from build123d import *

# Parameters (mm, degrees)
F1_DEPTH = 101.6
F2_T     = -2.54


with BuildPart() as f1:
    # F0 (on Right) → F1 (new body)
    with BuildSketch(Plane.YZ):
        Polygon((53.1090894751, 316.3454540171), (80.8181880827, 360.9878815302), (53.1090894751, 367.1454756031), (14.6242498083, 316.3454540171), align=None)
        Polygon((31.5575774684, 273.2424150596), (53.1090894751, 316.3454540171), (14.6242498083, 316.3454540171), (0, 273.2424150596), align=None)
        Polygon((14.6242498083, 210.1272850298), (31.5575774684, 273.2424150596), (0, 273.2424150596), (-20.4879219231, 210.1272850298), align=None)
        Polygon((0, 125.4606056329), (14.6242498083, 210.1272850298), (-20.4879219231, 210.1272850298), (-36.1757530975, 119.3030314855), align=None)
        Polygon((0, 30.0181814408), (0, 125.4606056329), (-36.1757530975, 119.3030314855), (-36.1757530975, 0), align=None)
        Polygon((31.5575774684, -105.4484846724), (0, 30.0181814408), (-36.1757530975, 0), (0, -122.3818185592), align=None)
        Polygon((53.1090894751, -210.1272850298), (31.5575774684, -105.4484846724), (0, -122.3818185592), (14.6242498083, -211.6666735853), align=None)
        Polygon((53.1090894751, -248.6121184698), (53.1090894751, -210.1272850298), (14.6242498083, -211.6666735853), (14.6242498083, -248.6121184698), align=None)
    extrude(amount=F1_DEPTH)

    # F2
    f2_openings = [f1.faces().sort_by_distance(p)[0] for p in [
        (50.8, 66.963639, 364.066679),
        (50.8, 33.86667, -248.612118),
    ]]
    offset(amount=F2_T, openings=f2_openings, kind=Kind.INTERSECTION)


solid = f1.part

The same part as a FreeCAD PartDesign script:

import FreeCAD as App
import Part
import Sketcher
Q = App.Units.Quantity


def faces_at(feature, points):
    """Names of the faces that lie closest to the given points."""
    faces = feature.Shape.Faces
    near = lambda p: min(range(len(faces)), key=lambda i: faces[i].distToShape(Part.Vertex(*p))[0])
    return sorted({f"Face{near(p) + 1}" for p in points})

doc = App.newDocument("Part")
body = doc.addObject("PartDesign::Body", "Body")

# Sketch on YZ plane
sketch1 = body.newObject("Sketcher::SketchObject", "Sketch")
sketch1.AttachmentSupport = (doc.getObject("YZ_Plane"), [""])
sketch1.MapMode = "FlatFace"
sketch1.addGeometry(Part.LineSegment(App.Vector(53.109089, 316.345454, 0), App.Vector(80.818188, 360.987882, 0)), False)
sketch1.addGeometry(Part.LineSegment(App.Vector(80.818188, 360.987882, 0), App.Vector(53.109089, 367.145476, 0)), False)
sketch1.addGeometry(Part.LineSegment(App.Vector(53.109089, 367.145476, 0), App.Vector(14.62425, 316.345454, 0)), False)
sketch1.addGeometry(Part.LineSegment(App.Vector(14.62425, 316.345454, 0), App.Vector(0, 273.242415, 0)), False)
sketch1.addGeometry(Part.LineSegment(App.Vector(0, 273.242415, 0), App.Vector(-20.487922, 210.127285, 0)), False)
sketch1.addGeometry(Part.LineSegment(App.Vector(-20.487922, 210.127285, 0), App.Vector(-36.175753, 119.303031, 0)), False)
sketch1.addGeometry(Part.LineSegment(App.Vector(-36.175753, 119.303031, 0), App.Vector(-36.175753, 0, 0)), False)
sketch1.addGeometry(Part.LineSegment(App.Vector(-36.175753, 0, 0), App.Vector(0, -122.381819, 0)), False)
sketch1.addGeometry(Part.LineSegment(App.Vector(0, -122.381819, 0), App.Vector(14.62425, -211.666674, 0)), False)
sketch1.addGeometry(Part.LineSegment(App.Vector(14.62425, -211.666674, 0), App.Vector(14.62425, -248.612118, 0)), False)
sketch1.addGeometry(Part.LineSegment(App.Vector(14.62425, -248.612118, 0), App.Vector(53.109089, -248.612118, 0)), False)
sketch1.addGeometry(Part.LineSegment(App.Vector(53.109089, -248.612118, 0), App.Vector(53.109089, -210.127285, 0)), False)
sketch1.addGeometry(Part.LineSegment(App.Vector(53.109089, -210.127285, 0), App.Vector(31.557577, -105.448485, 0)), False)
sketch1.addGeometry(Part.LineSegment(App.Vector(31.557577, -105.448485, 0), App.Vector(0, 30.018181, 0)), False)
sketch1.addGeometry(Part.LineSegment(App.Vector(0, 30.018181, 0), App.Vector(0, 125.460606, 0)), False)
sketch1.addGeometry(Part.LineSegment(App.Vector(0, 125.460606, 0), App.Vector(14.62425, 210.127285, 0)), False)
sketch1.addGeometry(Part.LineSegment(App.Vector(14.62425, 210.127285, 0), App.Vector(31.557577, 273.242415, 0)), False)
sketch1.addGeometry(Part.LineSegment(App.Vector(31.557577, 273.242415, 0), App.Vector(53.109089, 316.345454, 0)), False)
sketch1.addConstraint(Sketcher.Constraint("Coincident", 0, 2, 1, 1))
sketch1.addConstraint(Sketcher.Constraint("Coincident", 1, 2, 2, 1))
sketch1.addConstraint(Sketcher.Constraint("Coincident", 2, 2, 3, 1))
sketch1.addConstraint(Sketcher.Constraint("Coincident", 3, 2, 4, 1))
sketch1.addConstraint(Sketcher.Constraint("Coincident", 4, 2, 5, 1))
sketch1.addConstraint(Sketcher.Constraint("Coincident", 5, 2, 6, 1))
sketch1.addConstraint(Sketcher.Constraint("Coincident", 6, 2, 7, 1))
sketch1.addConstraint(Sketcher.Constraint("Coincident", 7, 2, 8, 1))
sketch1.addConstraint(Sketcher.Constraint("Coincident", 8, 2, 9, 1))
sketch1.addConstraint(Sketcher.Constraint("Coincident", 9, 2, 10, 1))
sketch1.addConstraint(Sketcher.Constraint("Coincident", 10, 2, 11, 1))
sketch1.addConstraint(Sketcher.Constraint("Coincident", 11, 2, 12, 1))
sketch1.addConstraint(Sketcher.Constraint("Coincident", 12, 2, 13, 1))
sketch1.addConstraint(Sketcher.Constraint("Coincident", 13, 2, 14, 1))
sketch1.addConstraint(Sketcher.Constraint("Coincident", 14, 2, 15, 1))
sketch1.addConstraint(Sketcher.Constraint("Coincident", 15, 2, 16, 1))
sketch1.addConstraint(Sketcher.Constraint("Coincident", 16, 2, 17, 1))
sketch1.addConstraint(Sketcher.Constraint("Coincident", 17, 2, 0, 1))
sketch1.addConstraint(Sketcher.Constraint("Vertical", 6))
sketch1.addConstraint(Sketcher.Constraint("Vertical", 9))
sketch1.addConstraint(Sketcher.Constraint("Horizontal", 10))
sketch1.addConstraint(Sketcher.Constraint("Vertical", 11))
sketch1.addConstraint(Sketcher.Constraint("Vertical", 14))
sketch1.addConstraint(Sketcher.Constraint("PointOnObject", 3, 2, -2))
sketch1.addConstraint(Sketcher.Constraint("PointOnObject", 6, 2, -1))
sketch1.addConstraint(Sketcher.Constraint("PointOnObject", 7, 2, -2))
sketch1.addConstraint(Sketcher.Constraint("PointOnObject", 13, 2, -2))
sketch1.addConstraint(Sketcher.Constraint("Parallel", 5, 15))
sketch1.addConstraint(Sketcher.Constraint("Horizontal", 4, 2, 15, 2))
sketch1.addConstraint(Sketcher.Constraint("Horizontal", 3, 2, 16, 2))
sketch1.addConstraint(Sketcher.Constraint("Horizontal", 2, 2, 17, 2))
sketch1.addConstraint(Sketcher.Constraint("Vertical", 2, 2, 8, 2))
sketch1.addConstraint(Sketcher.Constraint("Vertical", 1, 2, 10, 2))
sketch1.addConstraint(Sketcher.Constraint("Vertical", 9, 2, 15, 2))
sketch1.addConstraint(Sketcher.Constraint("Vertical", 12, 2, 16, 2))
sketch1.addConstraint(Sketcher.Constraint("Vertical", 11, 2, 17, 2))
sketch1.addConstraint(Sketcher.Constraint("DistanceX", 5, 2, 2, 2, Q("2.0000001 in")))
sketch1.addConstraint(Sketcher.Constraint("DistanceY", 7, 2, 13, 2, Q("6 in")))
sketch1.addConstraint(Sketcher.Constraint("Distance", 15, 85.920401))
sketch1.addConstraint(Sketcher.Constraint("DistanceX", 10, 1, 10, 2, 38.48484))
sketch1.addConstraint(Sketcher.Constraint("DistanceY", 6, 2, 6, 1, 119.303031))
sketch1.addConstraint(Sketcher.Constraint("DistanceX", 1, 2, 0, 2, 27.709099))
sketch1.addConstraint(Sketcher.Constraint("DistanceY", 9, 2, 7, 2, 126.2303))
sketch1.addConstraint(Sketcher.Constraint("DistanceY", 11, 2, 12, 2, 104.6788))
sketch1.addConstraint(Sketcher.Constraint("DistanceX", 4, 2, 16, 2, 52.045499))
sketch1.addConstraint(Sketcher.Constraint("Distance", 0, 52.542749))
sketch1.addConstraint(Sketcher.Constraint("Distance", 17, 48.190659))
sketch1.addConstraint(Sketcher.Constraint("DistanceY", 9, 2, 9, 1, 36.945445))
sketch1.addConstraint(Sketcher.Constraint("DistanceY", 11, 1, 11, 2, 38.484833))
sketch1.addConstraint(Sketcher.Constraint("DistanceY", 14, 1, 14, 2, 95.442424))
sketch1.addConstraint(Sketcher.Constraint("DistanceX", -1, 1, 0, 2, 80.818188))
sketch1.addConstraint(Sketcher.Constraint("DistanceY", -1, 1, 0, 2, 360.987882))
sketch1.addConstraint(Sketcher.Constraint("DistanceX", 4, 2, -1, 1, 20.487922))
sketch1.addConstraint(Sketcher.Constraint("DistanceY", 2, 2, 1, 2, 50.800022))
pad1 = body.newObject("PartDesign::Pad", "Pad")
pad1.Profile = sketch1
pad1.Length = Q("4 in")
doc.recompute()

thickness = body.newObject("PartDesign::Thickness", "Thickness")
thickness.Base = (pad1, faces_at(pad1, [(50.8, 66.964, 364.067), (50.8, 33.867, -248.612)]))
thickness.Value = Q("0.1 in")
thickness.Reversed = True
thickness.Join = "Intersection"

doc.recompute()
